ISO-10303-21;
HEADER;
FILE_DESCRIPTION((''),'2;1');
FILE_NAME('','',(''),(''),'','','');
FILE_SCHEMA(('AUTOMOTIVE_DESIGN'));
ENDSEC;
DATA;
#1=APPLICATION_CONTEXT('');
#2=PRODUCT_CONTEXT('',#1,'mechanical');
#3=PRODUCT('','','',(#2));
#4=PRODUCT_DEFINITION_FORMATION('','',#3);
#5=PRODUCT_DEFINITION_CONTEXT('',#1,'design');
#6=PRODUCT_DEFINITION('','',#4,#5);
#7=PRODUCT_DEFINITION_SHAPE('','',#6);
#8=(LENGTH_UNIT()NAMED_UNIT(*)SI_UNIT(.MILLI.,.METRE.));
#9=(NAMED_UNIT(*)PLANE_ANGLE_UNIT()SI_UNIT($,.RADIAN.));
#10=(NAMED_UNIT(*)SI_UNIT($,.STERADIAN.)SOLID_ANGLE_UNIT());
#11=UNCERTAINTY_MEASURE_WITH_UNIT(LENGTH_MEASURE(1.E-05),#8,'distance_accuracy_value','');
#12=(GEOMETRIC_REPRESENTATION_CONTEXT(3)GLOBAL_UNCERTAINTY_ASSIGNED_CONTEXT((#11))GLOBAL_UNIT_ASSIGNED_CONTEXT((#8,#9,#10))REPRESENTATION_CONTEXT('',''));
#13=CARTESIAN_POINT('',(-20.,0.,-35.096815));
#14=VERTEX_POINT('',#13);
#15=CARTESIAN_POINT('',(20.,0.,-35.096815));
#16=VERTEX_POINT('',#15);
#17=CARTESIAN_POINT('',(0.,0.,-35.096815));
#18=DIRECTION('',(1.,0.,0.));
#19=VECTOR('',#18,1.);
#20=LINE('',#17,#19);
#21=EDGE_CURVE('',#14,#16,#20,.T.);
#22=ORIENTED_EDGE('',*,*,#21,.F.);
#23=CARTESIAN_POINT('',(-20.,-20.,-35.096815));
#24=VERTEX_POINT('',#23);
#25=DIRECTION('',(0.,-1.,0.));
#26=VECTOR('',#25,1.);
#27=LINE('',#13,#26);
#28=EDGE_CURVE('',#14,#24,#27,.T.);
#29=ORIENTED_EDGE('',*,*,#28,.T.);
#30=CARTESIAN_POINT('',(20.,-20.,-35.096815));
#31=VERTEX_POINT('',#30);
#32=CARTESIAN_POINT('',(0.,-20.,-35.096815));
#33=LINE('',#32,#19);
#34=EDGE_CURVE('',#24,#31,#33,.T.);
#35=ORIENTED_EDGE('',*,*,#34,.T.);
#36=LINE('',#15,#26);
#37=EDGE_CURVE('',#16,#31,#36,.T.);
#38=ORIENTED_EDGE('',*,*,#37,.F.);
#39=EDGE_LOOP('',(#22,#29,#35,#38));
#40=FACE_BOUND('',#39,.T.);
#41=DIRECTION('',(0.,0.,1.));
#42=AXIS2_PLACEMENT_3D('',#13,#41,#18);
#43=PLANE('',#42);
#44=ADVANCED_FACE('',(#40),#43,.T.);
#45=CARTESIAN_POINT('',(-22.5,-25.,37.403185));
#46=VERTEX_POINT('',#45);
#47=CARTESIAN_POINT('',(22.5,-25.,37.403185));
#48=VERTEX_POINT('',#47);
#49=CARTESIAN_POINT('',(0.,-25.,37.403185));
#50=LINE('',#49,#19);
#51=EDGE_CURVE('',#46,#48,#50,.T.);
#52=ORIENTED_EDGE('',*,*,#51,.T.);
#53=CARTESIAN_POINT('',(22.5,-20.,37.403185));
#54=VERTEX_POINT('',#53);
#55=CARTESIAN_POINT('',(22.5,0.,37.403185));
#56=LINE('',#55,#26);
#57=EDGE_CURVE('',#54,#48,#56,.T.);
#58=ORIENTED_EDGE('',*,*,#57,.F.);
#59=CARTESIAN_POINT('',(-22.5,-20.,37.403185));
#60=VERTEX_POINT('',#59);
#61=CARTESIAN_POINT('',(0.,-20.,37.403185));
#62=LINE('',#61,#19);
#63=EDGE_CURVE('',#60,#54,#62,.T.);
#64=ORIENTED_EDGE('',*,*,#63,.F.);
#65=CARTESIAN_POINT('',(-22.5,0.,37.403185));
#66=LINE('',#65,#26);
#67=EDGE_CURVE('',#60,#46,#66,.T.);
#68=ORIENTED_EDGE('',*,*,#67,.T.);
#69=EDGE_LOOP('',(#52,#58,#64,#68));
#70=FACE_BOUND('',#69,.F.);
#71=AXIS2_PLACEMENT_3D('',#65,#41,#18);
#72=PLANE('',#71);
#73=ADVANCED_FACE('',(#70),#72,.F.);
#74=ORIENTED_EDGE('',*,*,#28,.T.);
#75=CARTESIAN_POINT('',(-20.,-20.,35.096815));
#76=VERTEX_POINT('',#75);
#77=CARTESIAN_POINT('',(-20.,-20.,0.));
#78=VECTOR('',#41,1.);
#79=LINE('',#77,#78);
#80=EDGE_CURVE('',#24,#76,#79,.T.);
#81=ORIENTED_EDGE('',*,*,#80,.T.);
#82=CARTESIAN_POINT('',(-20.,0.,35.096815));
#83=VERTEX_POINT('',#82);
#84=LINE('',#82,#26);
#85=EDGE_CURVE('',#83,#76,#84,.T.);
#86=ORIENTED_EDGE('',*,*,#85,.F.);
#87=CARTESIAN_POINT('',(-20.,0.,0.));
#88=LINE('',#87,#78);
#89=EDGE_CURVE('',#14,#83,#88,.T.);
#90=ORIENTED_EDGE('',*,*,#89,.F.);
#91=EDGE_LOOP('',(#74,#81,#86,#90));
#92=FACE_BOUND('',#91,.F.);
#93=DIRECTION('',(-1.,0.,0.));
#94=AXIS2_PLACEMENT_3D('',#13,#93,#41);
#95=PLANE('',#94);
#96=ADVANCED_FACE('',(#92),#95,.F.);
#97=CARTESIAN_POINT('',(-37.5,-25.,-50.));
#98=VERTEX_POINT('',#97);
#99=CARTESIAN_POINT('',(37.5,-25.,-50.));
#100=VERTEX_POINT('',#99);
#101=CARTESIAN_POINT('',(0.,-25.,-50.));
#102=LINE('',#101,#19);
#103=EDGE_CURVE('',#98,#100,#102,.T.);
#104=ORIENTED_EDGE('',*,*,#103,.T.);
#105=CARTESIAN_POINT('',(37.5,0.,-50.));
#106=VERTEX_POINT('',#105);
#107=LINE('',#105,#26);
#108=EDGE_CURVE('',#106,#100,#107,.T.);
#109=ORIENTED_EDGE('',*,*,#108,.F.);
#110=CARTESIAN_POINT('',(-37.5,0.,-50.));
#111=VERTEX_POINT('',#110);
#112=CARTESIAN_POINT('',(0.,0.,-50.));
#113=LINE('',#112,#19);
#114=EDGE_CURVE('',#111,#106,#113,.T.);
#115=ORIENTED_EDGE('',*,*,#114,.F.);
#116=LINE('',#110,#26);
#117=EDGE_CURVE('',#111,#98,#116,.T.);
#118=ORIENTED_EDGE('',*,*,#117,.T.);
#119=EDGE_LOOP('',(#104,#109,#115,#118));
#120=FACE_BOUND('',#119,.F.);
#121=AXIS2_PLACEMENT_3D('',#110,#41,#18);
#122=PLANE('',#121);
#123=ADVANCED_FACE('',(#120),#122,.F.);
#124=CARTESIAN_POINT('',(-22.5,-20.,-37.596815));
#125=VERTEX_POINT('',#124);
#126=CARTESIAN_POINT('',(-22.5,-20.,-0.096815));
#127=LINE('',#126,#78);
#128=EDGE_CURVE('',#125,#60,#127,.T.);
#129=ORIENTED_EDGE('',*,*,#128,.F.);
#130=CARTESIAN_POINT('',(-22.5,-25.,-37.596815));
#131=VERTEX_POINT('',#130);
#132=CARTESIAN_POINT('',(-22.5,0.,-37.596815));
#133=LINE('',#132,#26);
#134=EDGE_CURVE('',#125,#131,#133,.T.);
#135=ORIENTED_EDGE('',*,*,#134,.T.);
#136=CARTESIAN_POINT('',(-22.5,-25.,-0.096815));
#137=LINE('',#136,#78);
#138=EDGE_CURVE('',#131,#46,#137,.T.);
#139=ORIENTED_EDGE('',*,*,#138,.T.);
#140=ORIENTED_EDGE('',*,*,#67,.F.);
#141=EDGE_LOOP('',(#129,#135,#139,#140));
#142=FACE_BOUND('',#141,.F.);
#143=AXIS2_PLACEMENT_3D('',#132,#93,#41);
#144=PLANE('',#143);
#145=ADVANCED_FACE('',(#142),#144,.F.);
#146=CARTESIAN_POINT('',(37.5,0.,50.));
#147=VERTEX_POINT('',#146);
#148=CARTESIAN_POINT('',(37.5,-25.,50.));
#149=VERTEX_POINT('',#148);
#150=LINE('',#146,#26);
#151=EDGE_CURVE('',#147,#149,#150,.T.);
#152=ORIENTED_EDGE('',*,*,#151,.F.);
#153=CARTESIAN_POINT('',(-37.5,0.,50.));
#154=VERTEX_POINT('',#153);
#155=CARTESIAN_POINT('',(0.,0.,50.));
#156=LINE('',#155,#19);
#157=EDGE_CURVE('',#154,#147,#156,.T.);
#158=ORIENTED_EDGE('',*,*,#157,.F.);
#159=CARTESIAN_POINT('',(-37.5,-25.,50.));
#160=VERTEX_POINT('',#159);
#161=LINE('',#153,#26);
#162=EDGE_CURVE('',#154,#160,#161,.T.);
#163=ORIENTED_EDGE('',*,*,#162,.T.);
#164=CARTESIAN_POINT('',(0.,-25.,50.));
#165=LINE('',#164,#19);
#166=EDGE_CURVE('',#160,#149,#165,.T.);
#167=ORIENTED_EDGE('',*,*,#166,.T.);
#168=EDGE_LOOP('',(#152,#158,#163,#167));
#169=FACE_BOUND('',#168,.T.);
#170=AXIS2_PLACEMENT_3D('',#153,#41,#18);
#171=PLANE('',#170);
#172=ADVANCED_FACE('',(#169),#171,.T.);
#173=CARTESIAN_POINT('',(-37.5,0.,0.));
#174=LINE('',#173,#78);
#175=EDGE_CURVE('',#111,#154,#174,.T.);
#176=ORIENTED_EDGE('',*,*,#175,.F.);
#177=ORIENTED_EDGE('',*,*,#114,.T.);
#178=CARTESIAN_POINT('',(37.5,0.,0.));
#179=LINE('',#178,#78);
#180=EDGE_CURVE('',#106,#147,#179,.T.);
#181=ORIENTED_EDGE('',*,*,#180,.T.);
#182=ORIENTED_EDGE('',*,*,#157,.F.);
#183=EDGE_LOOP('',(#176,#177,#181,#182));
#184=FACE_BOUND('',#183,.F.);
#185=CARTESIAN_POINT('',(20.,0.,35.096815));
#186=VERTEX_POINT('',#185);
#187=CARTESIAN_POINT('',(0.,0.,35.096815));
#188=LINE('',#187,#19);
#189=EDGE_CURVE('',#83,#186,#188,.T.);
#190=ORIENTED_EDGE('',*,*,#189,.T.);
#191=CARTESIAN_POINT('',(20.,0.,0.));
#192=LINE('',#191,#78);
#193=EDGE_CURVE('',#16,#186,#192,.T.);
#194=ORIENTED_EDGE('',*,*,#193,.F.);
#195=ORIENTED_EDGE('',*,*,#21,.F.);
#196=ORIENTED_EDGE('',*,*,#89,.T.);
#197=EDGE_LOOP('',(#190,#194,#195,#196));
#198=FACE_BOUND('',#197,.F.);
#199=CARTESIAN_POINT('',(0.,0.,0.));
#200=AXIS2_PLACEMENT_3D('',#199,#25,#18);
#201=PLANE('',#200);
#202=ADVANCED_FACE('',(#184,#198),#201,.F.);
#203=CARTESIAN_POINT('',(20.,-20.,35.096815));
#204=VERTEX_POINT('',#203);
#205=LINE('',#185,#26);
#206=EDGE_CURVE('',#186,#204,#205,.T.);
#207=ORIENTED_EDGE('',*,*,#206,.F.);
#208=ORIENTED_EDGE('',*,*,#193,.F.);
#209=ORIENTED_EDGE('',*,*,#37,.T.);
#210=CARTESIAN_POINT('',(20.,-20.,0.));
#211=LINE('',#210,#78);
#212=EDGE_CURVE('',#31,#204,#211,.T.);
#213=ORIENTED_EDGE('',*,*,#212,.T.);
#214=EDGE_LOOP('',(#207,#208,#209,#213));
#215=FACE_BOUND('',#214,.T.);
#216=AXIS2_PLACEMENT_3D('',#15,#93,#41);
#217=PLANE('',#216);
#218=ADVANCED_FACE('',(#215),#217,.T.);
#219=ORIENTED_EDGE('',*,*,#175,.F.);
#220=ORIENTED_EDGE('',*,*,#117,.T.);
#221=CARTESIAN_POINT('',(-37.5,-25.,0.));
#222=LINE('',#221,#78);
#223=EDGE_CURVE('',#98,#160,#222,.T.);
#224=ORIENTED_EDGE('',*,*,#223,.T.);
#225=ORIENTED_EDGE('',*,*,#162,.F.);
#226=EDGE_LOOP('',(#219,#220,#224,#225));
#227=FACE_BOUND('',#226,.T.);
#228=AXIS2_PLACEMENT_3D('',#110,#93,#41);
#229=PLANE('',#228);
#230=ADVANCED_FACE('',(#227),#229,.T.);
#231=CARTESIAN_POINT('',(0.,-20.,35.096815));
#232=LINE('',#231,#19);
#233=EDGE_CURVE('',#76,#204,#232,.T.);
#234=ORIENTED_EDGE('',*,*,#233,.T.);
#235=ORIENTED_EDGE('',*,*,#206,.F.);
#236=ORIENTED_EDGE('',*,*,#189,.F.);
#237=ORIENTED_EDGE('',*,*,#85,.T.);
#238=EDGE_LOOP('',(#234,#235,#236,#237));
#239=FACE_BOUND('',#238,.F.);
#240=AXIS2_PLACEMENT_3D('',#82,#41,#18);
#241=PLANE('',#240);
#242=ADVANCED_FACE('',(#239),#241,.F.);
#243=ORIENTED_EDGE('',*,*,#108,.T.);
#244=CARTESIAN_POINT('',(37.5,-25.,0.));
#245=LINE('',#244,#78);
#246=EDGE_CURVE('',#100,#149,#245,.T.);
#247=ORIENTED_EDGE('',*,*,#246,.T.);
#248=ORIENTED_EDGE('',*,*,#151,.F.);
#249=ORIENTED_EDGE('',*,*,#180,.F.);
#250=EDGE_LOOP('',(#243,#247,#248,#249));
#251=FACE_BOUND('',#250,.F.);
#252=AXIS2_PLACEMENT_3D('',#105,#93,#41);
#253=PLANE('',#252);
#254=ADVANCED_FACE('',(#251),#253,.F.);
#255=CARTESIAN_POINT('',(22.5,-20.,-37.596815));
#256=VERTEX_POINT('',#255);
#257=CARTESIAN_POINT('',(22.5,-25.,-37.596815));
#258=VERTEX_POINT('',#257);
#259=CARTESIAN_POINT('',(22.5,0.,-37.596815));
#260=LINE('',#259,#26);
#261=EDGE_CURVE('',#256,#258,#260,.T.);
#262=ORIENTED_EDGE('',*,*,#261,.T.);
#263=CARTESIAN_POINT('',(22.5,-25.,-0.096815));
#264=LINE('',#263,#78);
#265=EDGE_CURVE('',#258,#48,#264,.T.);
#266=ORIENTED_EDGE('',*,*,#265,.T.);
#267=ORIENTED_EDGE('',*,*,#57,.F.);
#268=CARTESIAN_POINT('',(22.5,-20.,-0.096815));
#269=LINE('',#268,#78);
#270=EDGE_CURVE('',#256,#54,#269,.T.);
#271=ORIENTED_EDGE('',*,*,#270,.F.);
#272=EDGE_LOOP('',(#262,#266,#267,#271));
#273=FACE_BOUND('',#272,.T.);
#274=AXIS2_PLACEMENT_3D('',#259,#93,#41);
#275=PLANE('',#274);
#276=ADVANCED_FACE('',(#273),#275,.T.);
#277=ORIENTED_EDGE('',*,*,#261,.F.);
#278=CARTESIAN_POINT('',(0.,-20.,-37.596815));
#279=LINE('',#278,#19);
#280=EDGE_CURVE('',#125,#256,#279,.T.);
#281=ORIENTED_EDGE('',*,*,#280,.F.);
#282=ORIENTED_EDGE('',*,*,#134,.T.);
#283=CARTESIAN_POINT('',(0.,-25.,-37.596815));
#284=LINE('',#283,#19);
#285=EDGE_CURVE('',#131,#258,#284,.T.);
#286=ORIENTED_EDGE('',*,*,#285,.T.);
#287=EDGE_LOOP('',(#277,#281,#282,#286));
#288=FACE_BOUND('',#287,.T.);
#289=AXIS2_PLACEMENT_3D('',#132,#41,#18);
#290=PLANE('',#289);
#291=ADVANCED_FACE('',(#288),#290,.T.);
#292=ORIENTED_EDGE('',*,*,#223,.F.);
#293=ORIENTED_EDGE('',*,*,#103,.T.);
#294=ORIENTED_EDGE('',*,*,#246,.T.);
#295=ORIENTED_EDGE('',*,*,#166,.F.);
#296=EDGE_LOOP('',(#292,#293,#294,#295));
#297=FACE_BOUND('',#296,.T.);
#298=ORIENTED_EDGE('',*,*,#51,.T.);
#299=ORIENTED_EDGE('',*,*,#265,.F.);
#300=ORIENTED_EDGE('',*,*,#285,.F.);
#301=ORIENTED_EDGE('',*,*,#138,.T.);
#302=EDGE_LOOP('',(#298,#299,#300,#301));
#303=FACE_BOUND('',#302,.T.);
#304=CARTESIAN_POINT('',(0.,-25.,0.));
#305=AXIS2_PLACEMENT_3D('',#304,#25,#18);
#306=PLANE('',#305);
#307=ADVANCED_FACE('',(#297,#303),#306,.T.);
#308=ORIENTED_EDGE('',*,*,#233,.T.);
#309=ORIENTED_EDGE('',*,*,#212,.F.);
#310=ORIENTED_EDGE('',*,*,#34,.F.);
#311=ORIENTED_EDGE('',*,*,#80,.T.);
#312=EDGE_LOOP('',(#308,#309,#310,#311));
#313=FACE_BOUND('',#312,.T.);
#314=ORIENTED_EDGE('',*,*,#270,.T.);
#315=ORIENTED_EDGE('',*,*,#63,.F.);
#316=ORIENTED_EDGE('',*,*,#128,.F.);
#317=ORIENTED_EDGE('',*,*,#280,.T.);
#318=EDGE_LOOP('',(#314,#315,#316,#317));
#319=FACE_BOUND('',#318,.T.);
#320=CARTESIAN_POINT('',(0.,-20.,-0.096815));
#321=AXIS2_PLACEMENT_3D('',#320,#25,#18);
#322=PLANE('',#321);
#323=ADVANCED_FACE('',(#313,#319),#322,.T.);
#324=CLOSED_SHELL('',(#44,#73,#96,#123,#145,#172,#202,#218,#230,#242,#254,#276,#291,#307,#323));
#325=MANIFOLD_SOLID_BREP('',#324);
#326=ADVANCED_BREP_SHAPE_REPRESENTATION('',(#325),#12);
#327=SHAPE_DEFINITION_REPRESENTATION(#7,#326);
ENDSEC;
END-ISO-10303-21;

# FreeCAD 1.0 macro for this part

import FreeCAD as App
import Part
import Sketcher
from FreeCAD import Vector

doc = App.newDocument("Part")
body = doc.addObject("PartDesign::Body", "Body")

# Sketch on XZ plane
sketch1 = body.newObject("Sketcher::SketchObject", "Sketch")
sketch1.AttachmentSupport = (doc.getObject("XZ_Plane"), [""])
sketch1.MapMode = "FlatFace"
sketch1.addGeometry([
    Part.LineSegment(Vector(-22, 37, 0), Vector(-22, -38, 0)),  # 0
    Part.LineSegment(Vector(-22, -38, 0), Vector(22, -38, 0)),  # 1
    Part.LineSegment(Vector(22, -38, 0), Vector(22, 37, 0)),  # 2
    Part.LineSegment(Vector(22, 37, 0), Vector(-22, 37, 0)),  # 3
    Part.LineSegment(Vector(20, -35, 0), Vector(-20, -35, 0)),  # 4
    Part.LineSegment(Vector(-20, -35, 0), Vector(-20, 35, 0)),  # 5
    Part.LineSegment(Vector(-20, 35, 0), Vector(20, 35, 0)),  # 6
    Part.LineSegment(Vector(20, 35, 0), Vector(20, -35, 0)),  # 7
], False)
sketch1.addConstraint([
    Sketcher.Constraint("Coincident", 0, 2, 1, 1),
    Sketcher.Constraint("Coincident", 1, 2, 2, 1),
    Sketcher.Constraint("Coincident", 2, 2, 3, 1),
    Sketcher.Constraint("Coincident", 3, 2, 0, 1),
    Sketcher.Constraint("Coincident", 4, 2, 5, 1),
    Sketcher.Constraint("Coincident", 5, 2, 6, 1),
    Sketcher.Constraint("Coincident", 6, 2, 7, 1),
    Sketcher.Constraint("Coincident", 7, 2, 4, 1),
    Sketcher.Constraint("Vertical", 0),
    Sketcher.Constraint("Horizontal", 1),
    Sketcher.Constraint("Vertical", 2),
    Sketcher.Constraint("Horizontal", 3),
    Sketcher.Constraint("Horizontal", 4),
    Sketcher.Constraint("Vertical", 5),
    Sketcher.Constraint("Horizontal", 6),
    Sketcher.Constraint("Vertical", 7),
    Sketcher.Constraint("Symmetric", 4, 2, 6, 2, -1, 1),
    Sketcher.Constraint("DistanceX", 1, 1, 1, 2, 45.0),
    Sketcher.Constraint("DistanceX", 4, 2, 4, 1, 40.0),
    Sketcher.Constraint("DistanceY", 0, 2, 0, 1, 75.0),
    Sketcher.Constraint("DistanceX", 0, 2, -1, 1, 22.5),
    Sketcher.Constraint("DistanceY", 0, 2, 4, 2, 2.5),
    Sketcher.Constraint("DistanceY", 5, 1, 5, 2, 70.19363),
])
pad1 = body.newObject("PartDesign::Pad", "Pad")
pad1.Profile = sketch1
pad1.Length = 20

# Sketch on XZ plane
sketch2 = body.newObject("Sketcher::SketchObject", "Sketch001")
sketch2.AttachmentSupport = (doc.getObject("XZ_Plane"), [""])
sketch2.MapMode = "FlatFace"
sketch2.addGeometry([
    Part.LineSegment(Vector(-38, 50, 0), Vector(-38, -50, 0)),  # 0
    Part.LineSegment(Vector(-38, -50, 0), Vector(38, -50, 0)),  # 1
    Part.LineSegment(Vector(38, -50, 0), Vector(38, 50, 0)),  # 2
    Part.LineSegment(Vector(38, 50, 0), Vector(-38, 50, 0)),  # 3
    Part.LineSegment(Vector(22, -38, 0), Vector(-22, -38, 0)),  # 4
    Part.LineSegment(Vector(-22, -38, 0), Vector(-22, 37, 0)),  # 5
    Part.LineSegment(Vector(-22, 37, 0), Vector(22, 37, 0)),  # 6
    Part.LineSegment(Vector(22, 37, 0), Vector(22, -38, 0)),  # 7
], False)
sketch2.addConstraint([
    Sketcher.Constraint("Coincident", 0, 2, 1, 1),
    Sketcher.Constraint("Coincident", 1, 2, 2, 1),
    Sketcher.Constraint("Coincident", 2, 2, 3, 1),
    Sketcher.Constraint("Coincident", 3, 2, 0, 1),
    Sketcher.Constraint("Coincident", 4, 2, 5, 1),
    Sketcher.Constraint("Coincident", 5, 2, 6, 1),
    Sketcher.Constraint("Coincident", 6, 2, 7, 1),
    Sketcher.Constraint("Coincident", 7, 2, 4, 1),
    Sketcher.Constraint("Vertical", 0),
    Sketcher.Constraint("Horizontal", 1),
    Sketcher.Constraint("Vertical", 2),
    Sketcher.Constraint("Horizontal", 3),
    Sketcher.Constraint("Horizontal", 4),
    Sketcher.Constraint("Vertical", 5),
    Sketcher.Constraint("Horizontal", 6),
    Sketcher.Constraint("Vertical", 7),
    Sketcher.Constraint("Symmetric", 0, 2, 2, 2, -1, 1),
    Sketcher.Constraint("Equal", 3, 5),
    Sketcher.Constraint("DistanceX", 1, 1, 1, 2, 75.0),
    Sketcher.Constraint("DistanceX", 4, 2, 4, 1, 45.0),
    Sketcher.Constraint("DistanceY", 0, 2, 0, 1, 100.0),
    Sketcher.Constraint("DistanceX", 0, 2, 4, 2, 15.0),
    Sketcher.Constraint("DistanceY", 4, 2, -1, 1, 37.596815),
])
pad2 = body.newObject("PartDesign::Pad", "Pad001")
pad2.Profile = sketch2
pad2.Length = 25

doc.recompute()
